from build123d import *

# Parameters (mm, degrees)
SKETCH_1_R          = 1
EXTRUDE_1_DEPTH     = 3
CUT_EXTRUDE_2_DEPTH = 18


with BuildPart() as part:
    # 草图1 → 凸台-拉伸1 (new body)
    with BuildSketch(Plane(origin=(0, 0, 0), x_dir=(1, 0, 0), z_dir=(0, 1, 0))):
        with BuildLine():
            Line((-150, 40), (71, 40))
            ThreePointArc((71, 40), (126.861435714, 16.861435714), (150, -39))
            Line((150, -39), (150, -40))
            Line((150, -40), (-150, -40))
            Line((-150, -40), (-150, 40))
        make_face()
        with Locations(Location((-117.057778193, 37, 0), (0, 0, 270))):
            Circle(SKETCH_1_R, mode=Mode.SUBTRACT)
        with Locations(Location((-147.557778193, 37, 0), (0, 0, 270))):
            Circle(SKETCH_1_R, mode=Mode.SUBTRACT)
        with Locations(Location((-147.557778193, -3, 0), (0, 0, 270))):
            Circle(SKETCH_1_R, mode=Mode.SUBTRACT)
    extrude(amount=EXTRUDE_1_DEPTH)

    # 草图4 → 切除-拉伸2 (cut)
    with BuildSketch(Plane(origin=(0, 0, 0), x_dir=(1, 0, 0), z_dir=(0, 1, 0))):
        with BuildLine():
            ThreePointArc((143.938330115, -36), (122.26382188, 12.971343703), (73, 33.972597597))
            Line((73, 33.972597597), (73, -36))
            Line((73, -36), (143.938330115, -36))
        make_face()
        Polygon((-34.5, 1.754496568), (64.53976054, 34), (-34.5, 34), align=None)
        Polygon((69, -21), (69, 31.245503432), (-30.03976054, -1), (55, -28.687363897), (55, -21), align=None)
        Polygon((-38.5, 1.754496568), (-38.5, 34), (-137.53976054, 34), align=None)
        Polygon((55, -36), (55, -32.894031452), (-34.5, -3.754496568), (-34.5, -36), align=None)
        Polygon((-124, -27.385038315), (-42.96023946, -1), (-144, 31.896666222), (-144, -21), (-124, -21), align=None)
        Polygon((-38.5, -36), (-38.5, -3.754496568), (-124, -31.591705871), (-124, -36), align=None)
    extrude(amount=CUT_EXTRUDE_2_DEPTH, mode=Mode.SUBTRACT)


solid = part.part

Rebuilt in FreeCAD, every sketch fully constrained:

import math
import FreeCAD as App
import Part
import Sketcher

V = App.Vector
Q = App.Units.Quantity

doc = App.newDocument("Part")
body = doc.addObject("PartDesign::Body", "Body")

# Sketch on XZ plane
sketch1 = body.newObject("Sketcher::SketchObject", "Sketch")
sketch1.AttachmentSupport = (doc.getObject("XZ_Plane"), [""])
sketch1.MapMode = "FlatFace"
sketch1.addGeometry([
    Part.LineSegment(V(71, -40, 0), V(-150, -40, 0)),  # 0
    Part.LineSegment(V(-150, -40, 0), V(-150, 40, 0)),  # 1
    Part.LineSegment(V(-150, 40, 0), V(150, 40, 0)),  # 2
    Part.LineSegment(V(150, 40, 0), V(150, 39, 0)),  # 3
    Part.ArcOfCircle(Part.Circle(V(71, 39, 0), V(0, 0, 1), 79), math.radians(-90), math.radians(0)),  # 4
    Part.Circle(V(-147.6, 3, 0), V(0, 0, 1), 1),  # 5
    Part.Circle(V(-117.1, -37, 0), V(0, 0, 1), 1),  # 6
    Part.Circle(V(-147.6, -37, 0), V(0, 0, 1), 1),  # 7
], False)
sketch1.addConstraint([
    Sketcher.Constraint("Coincident", 0, 2, 1, 1),
    Sketcher.Constraint("Coincident", 1, 2, 2, 1),
    Sketcher.Constraint("Coincident", 2, 2, 3, 1),
    Sketcher.Constraint("Tangent", 3, 2, 4, 2),
    Sketcher.Constraint("Tangent", 4, 1, 0, 1),
    Sketcher.Constraint("Horizontal", 0),
    Sketcher.Constraint("Vertical", 1),
    Sketcher.Constraint("Horizontal", 2),
    Sketcher.Constraint("Vertical", 3),
    Sketcher.Constraint("Equal", 5, 6),
    Sketcher.Constraint("Equal", 6, 7),
    Sketcher.Constraint("Symmetric", 0, 2, 2, 2, -1, 1),
    Sketcher.Constraint("Horizontal", 6, 3, 7, 3),
    Sketcher.Constraint("Vertical", 5, 3, 7, 3),
    Sketcher.Constraint("Diameter", 5, Q("2 mm")),
    Sketcher.Constraint("Radius", 4, Q("79 mm")),
    Sketcher.Constraint("DistanceX", 0, 2, 0, 1, Q("221 mm")),
    Sketcher.Constraint("DistanceY", 1, 1, 1, 2, Q("80 mm")),
    Sketcher.Constraint("DistanceY", -1, 1, 5, 3, Q("3 mm")),
    Sketcher.Constraint("DistanceY", 6, 3, -1, 1, Q("37 mm")),
    Sketcher.Constraint("DistanceX", 5, 3, 6, 3, Q("30.5 mm")),
    Sketcher.Constraint("DistanceX", 5, 3, -1, 1, Q("147.557778 mm")),
])
pad1 = body.newObject("PartDesign::Pad", "Pad")
pad1.Profile = sketch1
pad1.Length = 3
pad1.Reversed = True

# Sketch on XZ plane
sketch2 = body.newObject("Sketcher::SketchObject", "Sketch001")
sketch2.AttachmentSupport = (doc.getObject("XZ_Plane"), [""])
sketch2.MapMode = "FlatFace"
sketch2.addGeometry([
    Part.ArcOfCircle(Part.Circle(V(71, 39, 0), V(0, 0, 1), 73), math.radians(-88), math.radians(-2)),  # 0
    Part.LineSegment(V(73, -34, 0), V(73, 36, 0)),  # 1
    Part.LineSegment(V(73, 36, 0), V(143.9, 36, 0)),  # 2
    Part.LineSegment(V(-34.5, -1.8, 0), V(64.5, -34, 0)),  # 3
    Part.LineSegment(V(64.5, -34, 0), V(-34.5, -34, 0)),  # 4
    Part.LineSegment(V(-34.5, -34, 0), V(-34.5, -1.8, 0)),  # 5
    Part.LineSegment(V(69, 21, 0), V(69, -31.2, 0)),  # 6
    Part.LineSegment(V(69, -31.2, 0), V(-30, 1, 0)),  # 7
    Part.LineSegment(V(-30, 1, 0), V(55, 28.7, 0)),  # 8
    Part.LineSegment(V(55, 28.7, 0), V(55, 21, 0)),  # 9
    Part.LineSegment(V(55, 21, 0), V(69, 21, 0)),  # 10
    Part.LineSegment(V(-38.5, -1.8, 0), V(-38.5, -34, 0)),  # 11
    Part.LineSegment(V(-38.5, -34, 0), V(-137.5, -34, 0)),  # 12
    Part.LineSegment(V(-137.5, -34, 0), V(-38.5, -1.8, 0)),  # 13
    Part.LineSegment(V(55, 36, 0), V(55, 32.9, 0)),  # 14
    Part.LineSegment(V(55, 32.9, 0), V(-34.5, 3.8, 0)),  # 15
    Part.LineSegment(V(-34.5, 3.8, 0), V(-34.5, 36, 0)),  # 16
    Part.LineSegment(V(-34.5, 36, 0), V(55, 36, 0)),  # 17
    Part.LineSegment(V(-124, 27.4, 0), V(-43, 1, 0)),  # 18
    Part.LineSegment(V(-43, 1, 0), V(-144, -31.9, 0)),  # 19
    Part.LineSegment(V(-144, -31.9, 0), V(-144, 21, 0)),  # 20
    Part.LineSegment(V(-144, 21, 0), V(-124, 21, 0)),  # 21
    Part.LineSegment(V(-124, 21, 0), V(-124, 27.4, 0)),  # 22
    Part.LineSegment(V(-38.5, 36, 0), V(-38.5, 3.8, 0)),  # 23
    Part.LineSegment(V(-38.5, 3.8, 0), V(-124, 31.6, 0)),  # 24
    Part.LineSegment(V(-124, 31.6, 0), V(-124, 36, 0)),  # 25
    Part.LineSegment(V(-124, 36, 0), V(-38.5, 36, 0)),  # 26
], False)
sketch2.addConstraint([
    Sketcher.Constraint("Coincident", 0, 1, 1, 1),
    Sketcher.Constraint("Coincident", 1, 2, 2, 1),
    Sketcher.Constraint("Coincident", 2, 2, 0, 2),
    Sketcher.Constraint("Coincident", 3, 2, 4, 1),
    Sketcher.Constraint("Coincident", 4, 2, 5, 1),
    Sketcher.Constraint("Coincident", 5, 2, 3, 1),
    Sketcher.Constraint("Coincident", 6, 2, 7, 1),
    Sketcher.Constraint("Coincident", 7, 2, 8, 1),
    Sketcher.Constraint("Coincident", 8, 2, 9, 1),
    Sketcher.Constraint("Coincident", 9, 2, 10, 1),
    Sketcher.Constraint("Coincident", 10, 2, 6, 1),
    Sketcher.Constraint("Coincident", 11, 2, 12, 1),
    Sketcher.Constraint("Coincident", 12, 2, 13, 1),
    Sketcher.Constraint("Coincident", 13, 2, 11, 1),
    Sketcher.Constraint("Coincident", 14, 2, 15, 1),
    Sketcher.Constraint("Coincident", 15, 2, 16, 1),
    Sketcher.Constraint("Coincident", 16, 2, 17, 1),
    Sketcher.Constraint("Coincident", 17, 2, 14, 1),
    Sketcher.Constraint("Coincident", 18, 2, 19, 1),
    Sketcher.Constraint("Coincident", 19, 2, 20, 1),
    Sketcher.Constraint("Coincident", 20, 2, 21, 1),
    Sketcher.Constraint("Coincident", 21, 2, 22, 1),
    Sketcher.Constraint("Coincident", 22, 2, 18, 1),
    Sketcher.Constraint("Coincident", 23, 2, 24, 1),
    Sketcher.Constraint("Coincident", 24, 2, 25, 1),
    Sketcher.Constraint("Coincident", 25, 2, 26, 1),
    Sketcher.Constraint("Coincident", 26, 2, 23, 1),
    Sketcher.Constraint("Vertical", 1),
    Sketcher.Constraint("Horizontal", 2),
    Sketcher.Constraint("Horizontal", 4),
    Sketcher.Constraint("Vertical", 5),
    Sketcher.Constraint("Vertical", 6),
    Sketcher.Constraint("Vertical", 9),
    Sketcher.Constraint("Horizontal", 10),
    Sketcher.Constraint("Vertical", 11),
    Sketcher.Constraint("Horizontal", 12),
    Sketcher.Constraint("Vertical", 14),
    Sketcher.Constraint("Vertical", 16),
    Sketcher.Constraint("Horizontal", 17),
    Sketcher.Constraint("Vertical", 20),
    Sketcher.Constraint("Horizontal", 21),
    Sketcher.Constraint("Vertical", 22),
    Sketcher.Constraint("Vertical", 23),
    Sketcher.Constraint("Vertical", 25),
    Sketcher.Constraint("Horizontal", 26),
    Sketcher.Constraint("Parallel", 3, 7),
    Sketcher.Constraint("Parallel", 8, 13),
    Sketcher.Constraint("Parallel", 13, 15),
    Sketcher.Constraint("Parallel", 7, 18),
    Sketcher.Constraint("Parallel", 15, 19),
    Sketcher.Constraint("Parallel", 18, 24),
    Sketcher.Constraint("Horizontal", 4, 2, 11, 2),
    Sketcher.Constraint("Horizontal", 5, 2, 13, 2),
    Sketcher.Constraint("Horizontal", 2, 2, 16, 2),
    Sketcher.Constraint("Horizontal", 7, 2, 18, 2),
    Sketcher.Constraint("Horizontal", 10, 2, 20, 2),
    Sketcher.Constraint("Horizontal", 15, 2, 23, 2),
    Sketcher.Constraint("Horizontal", 17, 2, 25, 2),
    Sketcher.Constraint("Vertical", 9, 2, 14, 2),
    Sketcher.Constraint("Vertical", 5, 2, 15, 2),
    Sketcher.Constraint("Vertical", 13, 2, 23, 2),
    Sketcher.Constraint("Vertical", 22, 2, 24, 2),
    Sketcher.Constraint("Equal", 4, 12),
    Sketcher.Constraint("Equal", 11, 16),
    Sketcher.Constraint("Equal", 3, 7),
    Sketcher.Constraint("Radius", 0, Q("73 mm")),
    Sketcher.Constraint("DistanceX", 10, 1, 10, 2, Q("14 mm")),
    Sketcher.Constraint("DistanceX", 21, 1, 21, 2, Q("20 mm")),
    Sketcher.Constraint("DistanceX", 17, 1, 17, 2, Q("89.5 mm")),
    Sketcher.Constraint("DistanceX", 26, 1, 26, 2, Q("85.5 mm")),
    Sketcher.Constraint("DistanceX", -1, 1, 0, 3, Q("71 mm")),
    Sketcher.Constraint("DistanceY", -1, 1, 0, 3, Q("39 mm")),
    Sketcher.Constraint("DistanceX", -1, 1, 0, 1, Q("73 mm")),
    Sketcher.Constraint("DistanceY", -1, 1, 1, 2, Q("36 mm")),
    Sketcher.Constraint("DistanceY", 3, 2, -1, 1, Q("34 mm")),
    Sketcher.Constraint("DistanceX", -1, 1, 6, 2, Q("69 mm")),
    Sketcher.Constraint("DistanceY", -1, 1, 7, 2, Q("1 mm")),
    Sketcher.Constraint("DistanceY", -1, 1, 9, 2, Q("21 mm")),
    Sketcher.Constraint("DistanceX", 19, 2, -1, 1, Q("144 mm")),
    Sketcher.Constraint("Distance", 8, Q("89.4335 mm")),
    Sketcher.Constraint("DistanceX", 4, 2, 4, 1, Q("99.039761 mm")),
    Sketcher.Constraint("DistanceY", 22, 1, 22, 2, Q("6.385038 mm")),
])
pocket1 = body.newObject("PartDesign::Pocket", "Pocket")
pocket1.Profile = sketch2
pocket1.Length = 18

doc.recompute()
